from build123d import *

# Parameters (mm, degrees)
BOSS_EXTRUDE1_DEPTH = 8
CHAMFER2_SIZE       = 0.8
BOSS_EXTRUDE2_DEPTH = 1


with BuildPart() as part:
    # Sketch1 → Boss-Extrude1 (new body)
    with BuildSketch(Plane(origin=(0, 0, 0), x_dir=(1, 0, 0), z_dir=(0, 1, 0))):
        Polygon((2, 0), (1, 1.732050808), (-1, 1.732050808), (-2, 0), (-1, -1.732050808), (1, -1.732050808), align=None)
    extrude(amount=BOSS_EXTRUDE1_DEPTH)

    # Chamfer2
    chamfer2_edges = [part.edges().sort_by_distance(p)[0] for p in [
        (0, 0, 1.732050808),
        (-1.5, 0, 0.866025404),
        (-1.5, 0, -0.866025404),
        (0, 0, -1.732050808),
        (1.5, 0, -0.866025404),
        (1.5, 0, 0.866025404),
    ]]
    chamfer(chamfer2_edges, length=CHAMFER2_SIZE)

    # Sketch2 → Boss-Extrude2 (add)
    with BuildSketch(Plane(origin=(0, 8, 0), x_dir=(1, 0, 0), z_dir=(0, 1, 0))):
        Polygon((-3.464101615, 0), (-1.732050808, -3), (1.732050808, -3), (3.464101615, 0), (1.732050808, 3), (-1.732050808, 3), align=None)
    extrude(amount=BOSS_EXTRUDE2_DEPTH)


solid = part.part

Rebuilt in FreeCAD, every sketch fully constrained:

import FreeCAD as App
import Part
import Sketcher
Q = App.Units.Quantity


def edges_at(feature, points):
    """Names of the edges that pass closest to the given points."""
    edges = feature.Shape.Edges
    near = lambda p: min(range(len(edges)), key=lambda i: edges[i].distToShape(Part.Vertex(*p))[0])
    return sorted({f"Edge{near(p) + 1}" for p in points})

doc = App.newDocument("Part")
params = doc.addObject("Spreadsheet::Sheet", "Params")
for row, (alias, value) in enumerate([
    ("sketch1_width", "2 mm"),
    ("sketch1_length", "2 mm"),
    ("pad1_length", "8 mm"),
    ("chamfer_size", "0.8 mm"),
    ("pad2_length", "1 mm"),
], start=1):
    params.set(f"A{row}", alias)
    params.set(f"B{row}", "=" + value)
    params.setAlias(f"B{row}", alias)

body = doc.addObject("PartDesign::Body", "Body")

sketch1 = body.newObject("Sketcher::SketchObject", "Sketch")
sketch1.AttachmentSupport = (doc.getObject("XZ_Plane"), [""])
sketch1.MapMode = "FlatFace"
sketch1.addGeometry([
    Part.LineSegment(App.Vector(2, 0, 0), App.Vector(1, -1.7, 0)),
    Part.LineSegment(App.Vector(1, -1.7, 0), App.Vector(-1, -1.7, 0)),
    Part.LineSegment(App.Vector(-1, -1.7, 0), App.Vector(-2, 0, 0)),
    Part.LineSegment(App.Vector(-2, 0, 0), App.Vector(-1, 1.7, 0)),
    Part.LineSegment(App.Vector(-1, 1.7, 0), App.Vector(1, 1.7, 0)),
    Part.LineSegment(App.Vector(1, 1.7, 0), App.Vector(2, 0, 0)),
], False)
sketch1.addConstraint([
    Sketcher.Constraint("Coincident", 0, 2, 1, 1),
    Sketcher.Constraint("Coincident", 1, 2, 2, 1),
    Sketcher.Constraint("Coincident", 2, 2, 3, 1),
    Sketcher.Constraint("Coincident", 3, 2, 4, 1),
    Sketcher.Constraint("Coincident", 4, 2, 5, 1),
    Sketcher.Constraint("Coincident", 5, 2, 0, 1),
    Sketcher.Constraint("Horizontal", 1),
    Sketcher.Constraint("Horizontal", 4),
    Sketcher.Constraint("Symmetric", 0, 2, 3, 2, -1, 1),
    Sketcher.Constraint("Symmetric", 2, 2, 5, 2, -1, 1),
    Sketcher.Constraint("PointOnObject", 2, 2, -1),
    Sketcher.Constraint("Parallel", 2, 5),
    Sketcher.Constraint("Vertical", 1, 2, 3, 2),
    Sketcher.Constraint("DistanceX", 1, 2, 1, 1, Q("2 mm")),
    Sketcher.Constraint("Angle", 0, Q("-120 deg")),
    Sketcher.Constraint("Distance", 0, Q("2 mm")),
])
sketch1.setExpression("Constraints[13]", "Params.sketch1_width")
sketch1.setExpression("Constraints[15]", "Params.sketch1_length")
pad1 = body.newObject("PartDesign::Pad", "Pad")
pad1.Profile = sketch1
pad1.setExpression("Length", "Params.pad1_length")
pad1.Reversed = True
doc.recompute()

chamfer = body.newObject("PartDesign::Chamfer", "Chamfer")
chamfer.Base = (pad1, edges_at(pad1, [
    (0, 0, 1.732),
    (-1.5, 0, 0.866),
    (-1.5, 0, -0.866),
    (0, 0, -1.732),
    (1.5, 0, -0.866),
    (1.5, 0, 0.866),
]))
chamfer.setExpression("Size", "Params.chamfer_size")

sketch2 = body.newObject("Sketcher::SketchObject", "Sketch001")
sketch2.AttachmentSupport = (doc.getObject("XZ_Plane"), [""])
sketch2.MapMode = "FlatFace"
sketch2.AttachmentOffset = App.Placement(App.Vector(0, 0, -8), App.Rotation())
sketch2.addGeometry([
    Part.LineSegment(App.Vector(-3.5, 0, 0), App.Vector(-1.7, 3, 0)),
    Part.LineSegment(App.Vector(-1.7, 3, 0), App.Vector(1.7, 3, 0)),
    Part.LineSegment(App.Vector(1.7, 3, 0), App.Vector(3.5, 0, 0)),
    Part.LineSegment(App.Vector(3.5, 0, 0), App.Vector(1.7, -3, 0)),
    Part.LineSegment(App.Vector(1.7, -3, 0), App.Vector(-1.7, -3, 0)),
    Part.LineSegment(App.Vector(-1.7, -3, 0), App.Vector(-3.5, 0, 0)),
], False)
sketch2.addConstraint([
    Sketcher.Constraint("Coincident", 0, 2, 1, 1),
    Sketcher.Constraint("Coincident", 1, 2, 2, 1),
    Sketcher.Constraint("Coincident", 2, 2, 3, 1),
    Sketcher.Constraint("Coincident", 3, 2, 4, 1),
    Sketcher.Constraint("Coincident", 4, 2, 5, 1),
    Sketcher.Constraint("Coincident", 5, 2, 0, 1),
    Sketcher.Constraint("Horizontal", 1),
    Sketcher.Constraint("Horizontal", 4),
    Sketcher.Constraint("Symmetric", 0, 2, 3, 2, -1, 1),
    Sketcher.Constraint("Symmetric", 2, 2, 5, 2, -1, 1),
    Sketcher.Constraint("PointOnObject", 2, 2, -1),
    Sketcher.Constraint("Parallel", 2, 5),
    Sketcher.Constraint("Vertical", 1, 2, 3, 2),
    Sketcher.Constraint("Angle", 0, Q("60 deg")),
    Sketcher.Constraint("DistanceY", -1, 1, 0, 2, Q("3 mm")),
    Sketcher.Constraint("DistanceX", 1, 1, 1, 2, Q("3.464102 mm")),
])
pad2 = body.newObject("PartDesign::Pad", "Pad001")
pad2.Profile = sketch2
pad2.setExpression("Length", "Params.pad2_length")
pad2.Reversed = True

doc.recompute()
